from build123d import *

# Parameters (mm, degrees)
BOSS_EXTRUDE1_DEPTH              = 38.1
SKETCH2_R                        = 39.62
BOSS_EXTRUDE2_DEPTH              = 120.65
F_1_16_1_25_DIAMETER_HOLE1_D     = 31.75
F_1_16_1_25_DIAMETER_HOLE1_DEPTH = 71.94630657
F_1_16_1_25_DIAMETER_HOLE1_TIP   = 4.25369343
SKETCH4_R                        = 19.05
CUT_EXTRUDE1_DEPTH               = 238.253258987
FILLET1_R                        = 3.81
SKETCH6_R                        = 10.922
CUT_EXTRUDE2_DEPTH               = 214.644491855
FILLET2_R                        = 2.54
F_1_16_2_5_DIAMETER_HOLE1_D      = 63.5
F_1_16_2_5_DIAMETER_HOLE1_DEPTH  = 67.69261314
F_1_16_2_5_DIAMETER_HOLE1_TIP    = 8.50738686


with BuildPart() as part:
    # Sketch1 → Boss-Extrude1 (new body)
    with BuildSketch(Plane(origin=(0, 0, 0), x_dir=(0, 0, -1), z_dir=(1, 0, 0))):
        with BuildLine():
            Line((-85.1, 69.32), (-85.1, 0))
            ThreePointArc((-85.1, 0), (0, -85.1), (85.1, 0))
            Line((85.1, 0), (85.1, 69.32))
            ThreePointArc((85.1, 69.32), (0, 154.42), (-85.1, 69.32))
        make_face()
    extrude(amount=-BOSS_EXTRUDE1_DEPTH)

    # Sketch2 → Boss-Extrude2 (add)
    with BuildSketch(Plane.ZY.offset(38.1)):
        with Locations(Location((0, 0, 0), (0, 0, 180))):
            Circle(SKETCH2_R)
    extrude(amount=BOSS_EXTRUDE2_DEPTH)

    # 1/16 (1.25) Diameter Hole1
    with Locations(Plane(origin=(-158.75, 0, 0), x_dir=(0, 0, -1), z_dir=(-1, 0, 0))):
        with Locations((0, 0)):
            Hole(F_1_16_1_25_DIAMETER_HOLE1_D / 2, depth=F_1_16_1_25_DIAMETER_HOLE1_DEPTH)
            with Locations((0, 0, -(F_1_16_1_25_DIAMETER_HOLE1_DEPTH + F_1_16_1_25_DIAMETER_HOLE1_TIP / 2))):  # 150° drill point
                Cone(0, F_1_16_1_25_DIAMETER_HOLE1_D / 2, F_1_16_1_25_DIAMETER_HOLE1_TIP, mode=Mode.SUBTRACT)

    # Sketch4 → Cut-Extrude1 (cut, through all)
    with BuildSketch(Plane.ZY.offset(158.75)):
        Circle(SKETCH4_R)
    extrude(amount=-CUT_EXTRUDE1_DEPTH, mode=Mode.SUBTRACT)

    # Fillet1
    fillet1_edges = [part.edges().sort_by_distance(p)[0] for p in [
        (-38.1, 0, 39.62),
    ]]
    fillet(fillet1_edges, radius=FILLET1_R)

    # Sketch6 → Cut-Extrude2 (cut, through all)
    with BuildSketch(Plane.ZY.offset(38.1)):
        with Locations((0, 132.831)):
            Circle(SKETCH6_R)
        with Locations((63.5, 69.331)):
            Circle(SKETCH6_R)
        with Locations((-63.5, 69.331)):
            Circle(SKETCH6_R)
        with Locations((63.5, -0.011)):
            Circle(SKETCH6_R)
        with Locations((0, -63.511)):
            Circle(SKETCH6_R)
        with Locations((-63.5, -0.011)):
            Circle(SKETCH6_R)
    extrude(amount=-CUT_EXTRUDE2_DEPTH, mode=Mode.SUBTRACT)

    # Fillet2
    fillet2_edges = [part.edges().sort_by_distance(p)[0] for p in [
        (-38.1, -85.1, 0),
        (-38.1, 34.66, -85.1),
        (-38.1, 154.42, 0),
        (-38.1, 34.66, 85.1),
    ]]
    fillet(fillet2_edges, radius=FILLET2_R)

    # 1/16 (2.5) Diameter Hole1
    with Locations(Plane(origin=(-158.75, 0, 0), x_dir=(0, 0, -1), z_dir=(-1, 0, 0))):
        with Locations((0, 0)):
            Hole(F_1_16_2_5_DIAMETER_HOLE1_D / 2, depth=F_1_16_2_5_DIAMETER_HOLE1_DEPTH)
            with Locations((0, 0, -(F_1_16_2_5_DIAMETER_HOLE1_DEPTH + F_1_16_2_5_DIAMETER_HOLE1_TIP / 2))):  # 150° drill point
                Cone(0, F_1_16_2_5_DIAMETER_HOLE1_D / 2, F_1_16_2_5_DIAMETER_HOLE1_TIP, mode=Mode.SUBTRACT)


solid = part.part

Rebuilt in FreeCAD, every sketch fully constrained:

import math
import FreeCAD as App
import Part
import Sketcher
Q = App.Units.Quantity


def edges_at(feature, points):
    """Names of the edges that pass closest to the given points."""
    edges = feature.Shape.Edges
    near = lambda p: min(range(len(edges)), key=lambda i: edges[i].distToShape(Part.Vertex(*p))[0])
    return sorted({f"Edge{near(p) + 1}" for p in points})

doc = App.newDocument("Part")
params = doc.addObject("Spreadsheet::Sheet", "Params")
for row, (alias, value) in enumerate([
    ("pad1_length", "1.5 in"),
    ("pad2_length", "4.75 in"),
    ("sketch3_diameter", "1.25 in"),
    ("hole_diameter", "1.25 in"),
    ("hole_depth", "71.946307 mm"),
    ("sketch4_diameter", "1.5 in"),
    ("fillet_radius", "0.15 in"),
    ("sketch5_diameter", "0.86 in"),
    ("fillet2_radius", "0.1 in"),
    ("sketch6_diameter", "2.5 in"),
    ("hole2_diameter", "2.5 in"),
    ("hole2_depth", "67.692613 mm"),
], start=1):
    params.set(f"A{row}", alias)
    params.set(f"B{row}", "=" + value)
    params.setAlias(f"B{row}", alias)

body = doc.addObject("PartDesign::Body", "Body")

sketch1 = doc.addObject("Sketcher::SketchObject", "Sketch")
body.addObject(sketch1)
sketch1.AttachmentSupport = (doc.YZ_Plane, [""])
sketch1.MapMode = "FlatFace"
sketch1.addGeometry([
    Part.LineSegment(App.Vector(69, 85, 0), App.Vector(0, 85, 0)),
    Part.ArcOfCircle(Part.Circle(App.Vector(0, 0, 0), App.Vector(0, 0, 1), 85), math.radians(90), math.radians(270)),
    Part.LineSegment(App.Vector(0, -85, 0), App.Vector(69, -85, 0)),
    Part.ArcOfCircle(Part.Circle(App.Vector(69, 0, 0), App.Vector(0, 0, 1), 85), math.radians(-90), math.radians(90)),
], False)
sketch1.addConstraint([
    Sketcher.Constraint("Tangent", 0, 2, 1, 1),
    Sketcher.Constraint("Tangent", 1, 2, 2, 1),
    Sketcher.Constraint("Tangent", 2, 2, 3, 1),
    Sketcher.Constraint("Tangent", 3, 2, 0, 1),
    Sketcher.Constraint("Horizontal", 0),
    Sketcher.Constraint("Horizontal", 2),
    Sketcher.Constraint("Coincident", 1, 3, -1, 1),
    Sketcher.Constraint("Radius", 1, 85.1),
    Sketcher.Constraint("DistanceX", 0, 2, 0, 1, 69.32),
])
pad1 = doc.addObject("PartDesign::Pad", "Pad")
body.addObject(pad1)
pad1.Profile = sketch1
pad1.setExpression("Length", "Params.pad1_length")
pad1.Reversed = True

sketch2 = doc.addObject("Sketcher::SketchObject", "Sketch001")
body.addObject(sketch2)
sketch2.AttachmentSupport = (doc.YZ_Plane, [""])
sketch2.MapMode = "FlatFace"
sketch2.AttachmentOffset = App.Placement(App.Vector(0, 0, -1.5 * 25.4), App.Rotation())
sketch2.addGeometry(Part.Circle(App.Vector(0, 0, 0), App.Vector(0, 0, 1), 40), False)
sketch2.addConstraint([
    Sketcher.Constraint("Coincident", 0, 3, -1, 1),
    Sketcher.Constraint("Diameter", 0, 79.24),
])
pad2 = doc.addObject("PartDesign::Pad", "Pad001")
body.addObject(pad2)
pad2.Profile = sketch2
pad2.setExpression("Length", "Params.pad2_length")
pad2.Reversed = True

sketch3 = doc.addObject("Sketcher::SketchObject", "Sketch002")
body.addObject(sketch3)
sketch3.AttachmentSupport = (doc.YZ_Plane, [""])
sketch3.MapMode = "FlatFace"
sketch3.AttachmentOffset = App.Placement(App.Vector(0, 0, -6.25 * 25.4), App.Rotation())
sketch3.addGeometry(Part.Circle(App.Vector(0, 0, 0), App.Vector(0, 0, 1), 16), False)
sketch3.addConstraint([
    Sketcher.Constraint("Coincident", 0, 3, -1, 1),
    Sketcher.Constraint("Diameter", 0, Q("1.25 in")),
])
sketch3.setExpression("Constraints[1]", "Params.sketch3_diameter")
doc.recompute()
hole = doc.addObject("PartDesign::Hole", "Hole")
body.addObject(hole)
hole.Profile = sketch3
hole.ThreadType = "None"
hole.setExpression("Diameter", "Params.hole_diameter")
hole.DepthType = "Dimension"
hole.setExpression("Depth", "Params.hole_depth")
hole.DrillPoint = "Angled"
hole.DrillPointAngle = 150
hole.Reversed = True

sketch4 = doc.addObject("Sketcher::SketchObject", "Sketch003")
body.addObject(sketch4)
sketch4.AttachmentSupport = (doc.YZ_Plane, [""])
sketch4.MapMode = "FlatFace"
sketch4.AttachmentOffset = App.Placement(App.Vector(0, 0, -6.25 * 25.4), App.Rotation())
sketch4.addGeometry(Part.Circle(App.Vector(0, 0, 0), App.Vector(0, 0, 1), 19), False)
sketch4.addConstraint([
    Sketcher.Constraint("Coincident", 0, 3, -1, 1),
    Sketcher.Constraint("Diameter", 0, Q("1.5 in")),
])
sketch4.setExpression("Constraints[1]", "Params.sketch4_diameter")
pocket1 = doc.addObject("PartDesign::Pocket", "Pocket")
body.addObject(pocket1)
pocket1.Profile = sketch4
pocket1.Type = "ThroughAll"
pocket1.Reversed = True
doc.recompute()

fillet = doc.addObject("PartDesign::Fillet", "Fillet")
body.addObject(fillet)
fillet.Base = (pocket1, edges_at(pocket1, [(-38.1, 0, 39.62)]))
fillet.setExpression("Radius", "Params.fillet_radius")

sketch5 = doc.addObject("Sketcher::SketchObject", "Sketch004")
body.addObject(sketch5)
sketch5.AttachmentSupport = (doc.YZ_Plane, [""])
sketch5.MapMode = "FlatFace"
sketch5.AttachmentOffset = App.Placement(App.Vector(0, 0, -1.5 * 25.4), App.Rotation())
sketch5.addGeometry([
    Part.Circle(App.Vector(133, 0, 0), App.Vector(0, 0, 1), 11),
    Part.Circle(App.Vector(69, 64, 0), App.Vector(0, 0, 1), 11),
    Part.Circle(App.Vector(69, -64, 0), App.Vector(0, 0, 1), 11),
    Part.Circle(App.Vector(0, 64, 0), App.Vector(0, 0, 1), 11),
    Part.Circle(App.Vector(-64, 0, 0), App.Vector(0, 0, 1), 11),
    Part.Circle(App.Vector(0, -64, 0), App.Vector(0, 0, 1), 11),
], False)
sketch5.addConstraint([
    Sketcher.Constraint("Equal", 0, 1),
    Sketcher.Constraint("Equal", 1, 2),
    Sketcher.Constraint("Equal", 2, 3),
    Sketcher.Constraint("Equal", 3, 4),
    Sketcher.Constraint("Equal", 4, 5),
    Sketcher.Constraint("Symmetric", 1, 3, 2, 3, -1),
    Sketcher.Constraint("Symmetric", 3, 3, 5, 3, -1),
    Sketcher.Constraint("PointOnObject", 0, 3, -1),
    Sketcher.Constraint("PointOnObject", 4, 3, -1),
    Sketcher.Constraint("Horizontal", 1, 3, 3, 3),
    Sketcher.Constraint("Diameter", 0, Q("0.86 in")),
    Sketcher.Constraint("DistanceY", 2, 3, 1, 3, Q("5 in")),
    Sketcher.Constraint("DistanceX", 1, 3, 0, 3, Q("2.5 in")),
    Sketcher.Constraint("DistanceX", 4, 3, 3, 3, Q("2.5 in")),
    Sketcher.Constraint("DistanceX", 3, 3, 1, 3, Q("2.73 in")),
    Sketcher.Constraint("DistanceX", -1, 1, 0, 3, 132.831),
])
sketch5.setExpression("Constraints[10]", "Params.sketch5_diameter")
pocket2 = doc.addObject("PartDesign::Pocket", "Pocket001")
body.addObject(pocket2)
pocket2.Profile = sketch5
pocket2.Type = "ThroughAll"
pocket2.Reversed = True
doc.recompute()

fillet2 = doc.addObject("PartDesign::Fillet", "Fillet001")
body.addObject(fillet2)
fillet2.Base = (pocket2, edges_at(pocket2, [
    (-38.1, -85.1, 0),
    (-38.1, 34.66, -85.1),
    (-38.1, 154.42, 0),
    (-38.1, 34.66, 85.1),
]))
fillet2.setExpression("Radius", "Params.fillet2_radius")

sketch6 = doc.addObject("Sketcher::SketchObject", "Sketch005")
body.addObject(sketch6)
sketch6.AttachmentSupport = (doc.YZ_Plane, [""])
sketch6.MapMode = "FlatFace"
sketch6.AttachmentOffset = App.Placement(App.Vector(0, 0, -6.25 * 25.4), App.Rotation())
sketch6.addGeometry(Part.Circle(App.Vector(0, 0, 0), App.Vector(0, 0, 1), 32), False)
sketch6.addConstraint([
    Sketcher.Constraint("Coincident", 0, 3, -1, 1),
    Sketcher.Constraint("Diameter", 0, Q("2.5 in")),
])
sketch6.setExpression("Constraints[1]", "Params.sketch6_diameter")
doc.recompute()
hole2 = doc.addObject("PartDesign::Hole", "Hole001")
body.addObject(hole2)
hole2.Profile = sketch6
hole2.ThreadType = "None"
hole2.setExpression("Diameter", "Params.hole2_diameter")
hole2.DepthType = "Dimension"
hole2.setExpression("Depth", "Params.hole2_depth")
hole2.DrillPoint = "Angled"
hole2.DrillPointAngle = 150
hole2.Reversed = True

doc.recompute()
